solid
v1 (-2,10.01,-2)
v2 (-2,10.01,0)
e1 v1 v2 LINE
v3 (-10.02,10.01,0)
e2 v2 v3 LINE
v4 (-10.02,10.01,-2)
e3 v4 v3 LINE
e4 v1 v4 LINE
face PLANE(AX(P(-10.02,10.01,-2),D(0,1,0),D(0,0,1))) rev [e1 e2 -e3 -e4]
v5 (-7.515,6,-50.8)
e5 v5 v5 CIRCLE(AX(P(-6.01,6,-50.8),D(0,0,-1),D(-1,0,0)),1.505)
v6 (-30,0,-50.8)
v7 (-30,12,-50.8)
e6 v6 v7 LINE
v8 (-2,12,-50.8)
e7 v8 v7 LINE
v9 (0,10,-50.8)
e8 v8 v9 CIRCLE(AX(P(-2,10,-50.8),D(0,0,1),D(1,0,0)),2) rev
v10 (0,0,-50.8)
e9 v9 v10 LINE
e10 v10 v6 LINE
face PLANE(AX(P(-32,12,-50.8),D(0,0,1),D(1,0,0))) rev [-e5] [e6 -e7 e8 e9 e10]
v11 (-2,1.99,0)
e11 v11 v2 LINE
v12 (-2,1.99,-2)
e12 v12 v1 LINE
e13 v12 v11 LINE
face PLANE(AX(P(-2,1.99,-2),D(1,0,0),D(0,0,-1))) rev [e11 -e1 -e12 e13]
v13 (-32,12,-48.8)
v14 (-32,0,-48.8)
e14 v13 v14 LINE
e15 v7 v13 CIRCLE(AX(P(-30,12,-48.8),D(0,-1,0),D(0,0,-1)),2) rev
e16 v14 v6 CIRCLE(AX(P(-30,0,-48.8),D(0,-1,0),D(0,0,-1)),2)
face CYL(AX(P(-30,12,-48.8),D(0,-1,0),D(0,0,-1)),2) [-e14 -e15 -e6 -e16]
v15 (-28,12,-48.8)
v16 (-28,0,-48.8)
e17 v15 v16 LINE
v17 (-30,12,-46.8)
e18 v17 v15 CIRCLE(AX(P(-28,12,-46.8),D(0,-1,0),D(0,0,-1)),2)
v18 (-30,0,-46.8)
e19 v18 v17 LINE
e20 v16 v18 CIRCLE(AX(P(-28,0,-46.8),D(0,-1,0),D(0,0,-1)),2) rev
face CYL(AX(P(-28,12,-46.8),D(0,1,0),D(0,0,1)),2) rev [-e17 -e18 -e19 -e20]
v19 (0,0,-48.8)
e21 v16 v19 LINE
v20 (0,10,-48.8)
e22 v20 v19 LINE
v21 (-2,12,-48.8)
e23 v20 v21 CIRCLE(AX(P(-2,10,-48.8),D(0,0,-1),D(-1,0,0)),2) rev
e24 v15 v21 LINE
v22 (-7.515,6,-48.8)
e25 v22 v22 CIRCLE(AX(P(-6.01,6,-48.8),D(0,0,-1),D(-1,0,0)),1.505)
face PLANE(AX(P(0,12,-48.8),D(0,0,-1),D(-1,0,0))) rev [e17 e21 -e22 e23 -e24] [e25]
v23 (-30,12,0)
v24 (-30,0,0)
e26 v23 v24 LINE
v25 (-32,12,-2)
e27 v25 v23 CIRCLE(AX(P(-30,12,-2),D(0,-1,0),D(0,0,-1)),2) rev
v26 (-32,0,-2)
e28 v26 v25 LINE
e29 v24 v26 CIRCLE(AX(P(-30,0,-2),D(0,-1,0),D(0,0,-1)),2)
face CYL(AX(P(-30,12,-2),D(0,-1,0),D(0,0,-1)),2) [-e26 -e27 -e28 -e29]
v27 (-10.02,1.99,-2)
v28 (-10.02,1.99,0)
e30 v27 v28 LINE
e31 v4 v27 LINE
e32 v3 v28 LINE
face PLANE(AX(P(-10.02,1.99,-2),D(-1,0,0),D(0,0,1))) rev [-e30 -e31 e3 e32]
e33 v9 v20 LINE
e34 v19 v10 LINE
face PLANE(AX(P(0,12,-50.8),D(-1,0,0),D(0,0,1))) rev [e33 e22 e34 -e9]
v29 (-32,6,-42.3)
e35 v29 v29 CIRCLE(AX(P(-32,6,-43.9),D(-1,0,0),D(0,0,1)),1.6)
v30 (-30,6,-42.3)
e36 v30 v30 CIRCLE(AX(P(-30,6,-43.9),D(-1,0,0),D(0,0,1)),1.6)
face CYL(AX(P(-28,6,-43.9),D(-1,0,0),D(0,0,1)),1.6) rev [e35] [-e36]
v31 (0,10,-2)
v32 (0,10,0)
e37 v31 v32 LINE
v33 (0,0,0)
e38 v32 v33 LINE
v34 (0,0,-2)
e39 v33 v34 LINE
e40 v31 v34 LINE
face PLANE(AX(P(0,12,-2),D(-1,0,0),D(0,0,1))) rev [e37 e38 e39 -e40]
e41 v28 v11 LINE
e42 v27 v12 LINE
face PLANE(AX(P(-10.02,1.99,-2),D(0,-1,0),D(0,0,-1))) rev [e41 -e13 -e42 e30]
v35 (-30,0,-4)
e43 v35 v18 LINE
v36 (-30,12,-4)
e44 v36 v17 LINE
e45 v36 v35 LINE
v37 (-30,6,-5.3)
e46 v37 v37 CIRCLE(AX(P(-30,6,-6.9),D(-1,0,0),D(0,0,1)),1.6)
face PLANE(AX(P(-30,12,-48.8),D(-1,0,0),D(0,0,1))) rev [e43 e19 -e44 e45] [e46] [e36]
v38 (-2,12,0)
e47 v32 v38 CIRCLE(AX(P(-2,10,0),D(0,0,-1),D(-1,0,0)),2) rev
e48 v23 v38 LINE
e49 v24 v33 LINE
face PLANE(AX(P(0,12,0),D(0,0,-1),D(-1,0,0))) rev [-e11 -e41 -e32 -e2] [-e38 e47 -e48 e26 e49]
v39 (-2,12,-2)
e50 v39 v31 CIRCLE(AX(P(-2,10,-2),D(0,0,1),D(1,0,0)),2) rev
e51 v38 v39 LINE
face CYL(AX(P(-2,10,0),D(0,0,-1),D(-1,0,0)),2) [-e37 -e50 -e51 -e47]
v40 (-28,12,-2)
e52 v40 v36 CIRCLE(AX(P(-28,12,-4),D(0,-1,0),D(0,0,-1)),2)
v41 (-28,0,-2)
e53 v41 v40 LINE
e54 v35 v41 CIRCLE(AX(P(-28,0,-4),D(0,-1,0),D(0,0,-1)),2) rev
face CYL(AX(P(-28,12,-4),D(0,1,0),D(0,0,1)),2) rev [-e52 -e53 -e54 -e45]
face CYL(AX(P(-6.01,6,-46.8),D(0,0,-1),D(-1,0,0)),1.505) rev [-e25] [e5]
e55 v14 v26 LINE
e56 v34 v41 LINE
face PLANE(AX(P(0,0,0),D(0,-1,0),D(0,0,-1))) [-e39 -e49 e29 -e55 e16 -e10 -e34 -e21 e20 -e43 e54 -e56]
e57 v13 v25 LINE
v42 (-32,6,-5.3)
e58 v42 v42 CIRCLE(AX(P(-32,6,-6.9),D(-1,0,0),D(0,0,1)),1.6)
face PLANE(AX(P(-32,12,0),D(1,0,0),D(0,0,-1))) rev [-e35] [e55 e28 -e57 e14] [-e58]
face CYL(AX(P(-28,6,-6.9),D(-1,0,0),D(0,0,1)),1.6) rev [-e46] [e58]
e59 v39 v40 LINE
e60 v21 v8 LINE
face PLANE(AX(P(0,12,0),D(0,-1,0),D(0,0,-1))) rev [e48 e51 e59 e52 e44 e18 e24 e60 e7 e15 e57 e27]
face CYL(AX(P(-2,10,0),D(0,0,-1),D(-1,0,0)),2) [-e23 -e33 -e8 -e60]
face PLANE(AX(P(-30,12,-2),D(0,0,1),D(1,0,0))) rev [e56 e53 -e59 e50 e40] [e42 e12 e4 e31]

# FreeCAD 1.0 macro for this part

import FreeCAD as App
import Part
import Sketcher
Q = App.Units.Quantity


def edges_at(feature, points):
    """Names of the edges that pass closest to the given points."""
    edges = feature.Shape.Edges
    near = lambda p: min(range(len(edges)), key=lambda i: edges[i].distToShape(Part.Vertex(*p))[0])
    return sorted({f"Edge{near(p) + 1}" for p in points})

doc = App.newDocument("Part")
body = doc.addObject("PartDesign::Body", "Body")

sketch1 = body.newObject("Sketcher::SketchObject", "Sketch")
sketch1.AttachmentSupport = (doc.getObject("XZ_Plane"), [""])
sketch1.MapMode = "FlatFace"
sketch1.addGeometry(Part.LineSegment(App.Vector(-32, 0, 0), App.Vector(0, 0, 0)), False)
sketch1.addGeometry(Part.LineSegment(App.Vector(0, 0, 0), App.Vector(0, -2, 0)), False)
sketch1.addGeometry(Part.LineSegment(App.Vector(0, -2, 0), App.Vector(-30, -2, 0)), False)
sketch1.addGeometry(Part.LineSegment(App.Vector(-30, -2, 0), App.Vector(-30, -48.8, 0)), False)
sketch1.addGeometry(Part.LineSegment(App.Vector(-30, -48.8, 0), App.Vector(0, -48.8, 0)), False)
sketch1.addGeometry(Part.LineSegment(App.Vector(0, -48.8, 0), App.Vector(0, -50.8, 0)), False)
sketch1.addGeometry(Part.LineSegment(App.Vector(0, -50.8, 0), App.Vector(-32, -50.8, 0)), False)
sketch1.addGeometry(Part.LineSegment(App.Vector(-32, -50.8, 0), App.Vector(-32, 0, 0)), False)
sketch1.addConstraint(Sketcher.Constraint("Coincident", 0, 2, 1, 1))
sketch1.addConstraint(Sketcher.Constraint("Coincident", 1, 2, 2, 1))
sketch1.addConstraint(Sketcher.Constraint("Coincident", 2, 2, 3, 1))
sketch1.addConstraint(Sketcher.Constraint("Coincident", 3, 2, 4, 1))
sketch1.addConstraint(Sketcher.Constraint("Coincident", 4, 2, 5, 1))
sketch1.addConstraint(Sketcher.Constraint("Coincident", 5, 2, 6, 1))
sketch1.addConstraint(Sketcher.Constraint("Coincident", 6, 2, 7, 1))
sketch1.addConstraint(Sketcher.Constraint("Coincident", 7, 2, 0, 1))
sketch1.addConstraint(Sketcher.Constraint("Horizontal", 0))
sketch1.addConstraint(Sketcher.Constraint("Vertical", 1))
sketch1.addConstraint(Sketcher.Constraint("Horizontal", 2))
sketch1.addConstraint(Sketcher.Constraint("Vertical", 3))
sketch1.addConstraint(Sketcher.Constraint("Horizontal", 4))
sketch1.addConstraint(Sketcher.Constraint("Vertical", 5))
sketch1.addConstraint(Sketcher.Constraint("Horizontal", 6))
sketch1.addConstraint(Sketcher.Constraint("Vertical", 7))
sketch1.addConstraint(Sketcher.Constraint("Coincident", 0, 2, -1, 1))
sketch1.addConstraint(Sketcher.Constraint("PointOnObject", 4, 2, -2))
sketch1.addConstraint(Sketcher.Constraint("Equal", 1, 5))
sketch1.addConstraint(Sketcher.Constraint("DistanceX", 0, 1, 0, 2, Q("32 mm")))
sketch1.addConstraint(Sketcher.Constraint("DistanceX", 2, 2, 2, 1, Q("30 mm")))
sketch1.addConstraint(Sketcher.Constraint("DistanceY", 1, 2, 1, 1, Q("2 mm")))
sketch1.addConstraint(Sketcher.Constraint("DistanceY", 3, 2, 3, 1, Q("46.8 mm")))
pad1 = body.newObject("PartDesign::Pad", "Pad")
pad1.Profile = sketch1
pad1.Length = 12
pad1.Reversed = True

sketch2 = body.newObject("Sketcher::SketchObject", "Sketch001")
sketch2.AttachmentSupport = (doc.getObject("XY_Plane"), [""])
sketch2.MapMode = "FlatFace"
sketch2.AttachmentOffset = App.Placement(App.Vector(0, 0, -50.8), App.Rotation())
sketch2.addGeometry(Part.Circle(App.Vector(-6.01, 6, 0), App.Vector(0, 0, 1), 1.505), False)
sketch2.addConstraint(Sketcher.Constraint("Diameter", 0, Q("3.01 mm")))
sketch2.addConstraint(Sketcher.Constraint("DistanceY", -1, 1, 0, 3, Q("6 mm")))
sketch2.addConstraint(Sketcher.Constraint("DistanceX", 0, 3, -1, 1, Q("6.01 mm")))
pocket1 = body.newObject("PartDesign::Pocket", "Pocket")
pocket1.Profile = sketch2
pocket1.Length = 4
pocket1.Reversed = True

sketch3 = body.newObject("Sketcher::SketchObject", "Sketch002")
sketch3.AttachmentSupport = (doc.getObject("YZ_Plane"), [""])
sketch3.MapMode = "FlatFace"
sketch3.AttachmentOffset = App.Placement(App.Vector(0, 0, -32), App.Rotation())
sketch3.addGeometry(Part.Circle(App.Vector(6, -43.9, 0), App.Vector(0, 0, 1), 1.6), False)
sketch3.addGeometry(Part.Circle(App.Vector(6, -6.9, 0), App.Vector(0, 0, 1), 1.6), False)
sketch3.addConstraint(Sketcher.Constraint("Equal", 0, 1))
sketch3.addConstraint(Sketcher.Constraint("Vertical", 0, 3, 1, 3))
sketch3.addConstraint(Sketcher.Constraint("Diameter", 0, Q("3.2 mm")))
sketch3.addConstraint(Sketcher.Constraint("DistanceX", -1, 1, 0, 3, Q("6 mm")))
sketch3.addConstraint(Sketcher.Constraint("DistanceY", 0, 3, 1, 3, Q("37 mm")))
sketch3.addConstraint(Sketcher.Constraint("DistanceY", 0, 3, -1, 1, Q("43.9 mm")))
pocket2 = body.newObject("PartDesign::Pocket", "Pocket001")
pocket2.Profile = sketch3
pocket2.Length = 4
pocket2.Reversed = True

sketch4 = body.newObject("Sketcher::SketchObject", "Sketch003")
sketch4.AttachmentSupport = (doc.getObject("XY_Plane"), [""])
sketch4.MapMode = "FlatFace"
sketch4.addGeometry(Part.LineSegment(App.Vector(-10.02, 10.01, 0), App.Vector(-10.02, 1.99, 0)), False)
sketch4.addGeometry(Part.LineSegment(App.Vector(-10.02, 1.99, 0), App.Vector(-2, 1.99, 0)), False)
sketch4.addGeometry(Part.LineSegment(App.Vector(-2, 1.99, 0), App.Vector(-2, 10.01, 0)), False)
sketch4.addGeometry(Part.LineSegment(App.Vector(-2, 10.01, 0), App.Vector(-10.02, 10.01, 0)), False)
sketch4.addConstraint(Sketcher.Constraint("Coincident", 0, 2, 1, 1))
sketch4.addConstraint(Sketcher.Constraint("Coincident", 1, 2, 2, 1))
sketch4.addConstraint(Sketcher.Constraint("Coincident", 2, 2, 3, 1))
sketch4.addConstraint(Sketcher.Constraint("Coincident", 3, 2, 0, 1))
sketch4.addConstraint(Sketcher.Constraint("Vertical", 0))
sketch4.addConstraint(Sketcher.Constraint("Horizontal", 1))
sketch4.addConstraint(Sketcher.Constraint("Vertical", 2))
sketch4.addConstraint(Sketcher.Constraint("Horizontal", 3))
sketch4.addConstraint(Sketcher.Constraint("Equal", 3, 0))
sketch4.addConstraint(Sketcher.Constraint("DistanceX", 1, 2, -1, 1, Q("2 mm")))
sketch4.addConstraint(Sketcher.Constraint("DistanceX", 1, 1, 1, 2, Q("8.02 mm")))
sketch4.addConstraint(Sketcher.Constraint("DistanceY", -1, 1, 0, 2, Q("1.99 mm")))
pocket3 = body.newObject("PartDesign::Pocket", "Pocket002")
pocket3.Profile = sketch4
pocket3.Length = 2
doc.recompute()

fillet = body.newObject("PartDesign::Fillet", "Fillet")
fillet.Base = (pocket3, edges_at(pocket3, [(0, 12, -1)]))
fillet.Radius = 2
doc.recompute()

fillet2 = body.newObject("PartDesign::Fillet", "Fillet001")
fillet2.Base = (fillet, edges_at(fillet, [(0, 12, -49.8)]))
fillet2.Radius = 2
doc.recompute()

fillet3 = body.newObject("PartDesign::Fillet", "Fillet002")
fillet3.Base = (fillet2, edges_at(fillet2, [(-30, 6, -2)]))
fillet3.Radius = 2
doc.recompute()

fillet4 = body.newObject("PartDesign::Fillet", "Fillet003")
fillet4.Base = (fillet3, edges_at(fillet3, [(-32, 6, 0)]))
fillet4.Radius = 2
doc.recompute()

fillet5 = body.newObject("PartDesign::Fillet", "Fillet004")
fillet5.Base = (fillet4, edges_at(fillet4, [(-30, 6, -48.8)]))
fillet5.Radius = 2
doc.recompute()

fillet6 = body.newObject("PartDesign::Fillet", "Fillet005")
fillet6.Base = (fillet5, edges_at(fillet5, [(-32, 6, -50.8)]))
fillet6.Radius = 2

doc.recompute()
